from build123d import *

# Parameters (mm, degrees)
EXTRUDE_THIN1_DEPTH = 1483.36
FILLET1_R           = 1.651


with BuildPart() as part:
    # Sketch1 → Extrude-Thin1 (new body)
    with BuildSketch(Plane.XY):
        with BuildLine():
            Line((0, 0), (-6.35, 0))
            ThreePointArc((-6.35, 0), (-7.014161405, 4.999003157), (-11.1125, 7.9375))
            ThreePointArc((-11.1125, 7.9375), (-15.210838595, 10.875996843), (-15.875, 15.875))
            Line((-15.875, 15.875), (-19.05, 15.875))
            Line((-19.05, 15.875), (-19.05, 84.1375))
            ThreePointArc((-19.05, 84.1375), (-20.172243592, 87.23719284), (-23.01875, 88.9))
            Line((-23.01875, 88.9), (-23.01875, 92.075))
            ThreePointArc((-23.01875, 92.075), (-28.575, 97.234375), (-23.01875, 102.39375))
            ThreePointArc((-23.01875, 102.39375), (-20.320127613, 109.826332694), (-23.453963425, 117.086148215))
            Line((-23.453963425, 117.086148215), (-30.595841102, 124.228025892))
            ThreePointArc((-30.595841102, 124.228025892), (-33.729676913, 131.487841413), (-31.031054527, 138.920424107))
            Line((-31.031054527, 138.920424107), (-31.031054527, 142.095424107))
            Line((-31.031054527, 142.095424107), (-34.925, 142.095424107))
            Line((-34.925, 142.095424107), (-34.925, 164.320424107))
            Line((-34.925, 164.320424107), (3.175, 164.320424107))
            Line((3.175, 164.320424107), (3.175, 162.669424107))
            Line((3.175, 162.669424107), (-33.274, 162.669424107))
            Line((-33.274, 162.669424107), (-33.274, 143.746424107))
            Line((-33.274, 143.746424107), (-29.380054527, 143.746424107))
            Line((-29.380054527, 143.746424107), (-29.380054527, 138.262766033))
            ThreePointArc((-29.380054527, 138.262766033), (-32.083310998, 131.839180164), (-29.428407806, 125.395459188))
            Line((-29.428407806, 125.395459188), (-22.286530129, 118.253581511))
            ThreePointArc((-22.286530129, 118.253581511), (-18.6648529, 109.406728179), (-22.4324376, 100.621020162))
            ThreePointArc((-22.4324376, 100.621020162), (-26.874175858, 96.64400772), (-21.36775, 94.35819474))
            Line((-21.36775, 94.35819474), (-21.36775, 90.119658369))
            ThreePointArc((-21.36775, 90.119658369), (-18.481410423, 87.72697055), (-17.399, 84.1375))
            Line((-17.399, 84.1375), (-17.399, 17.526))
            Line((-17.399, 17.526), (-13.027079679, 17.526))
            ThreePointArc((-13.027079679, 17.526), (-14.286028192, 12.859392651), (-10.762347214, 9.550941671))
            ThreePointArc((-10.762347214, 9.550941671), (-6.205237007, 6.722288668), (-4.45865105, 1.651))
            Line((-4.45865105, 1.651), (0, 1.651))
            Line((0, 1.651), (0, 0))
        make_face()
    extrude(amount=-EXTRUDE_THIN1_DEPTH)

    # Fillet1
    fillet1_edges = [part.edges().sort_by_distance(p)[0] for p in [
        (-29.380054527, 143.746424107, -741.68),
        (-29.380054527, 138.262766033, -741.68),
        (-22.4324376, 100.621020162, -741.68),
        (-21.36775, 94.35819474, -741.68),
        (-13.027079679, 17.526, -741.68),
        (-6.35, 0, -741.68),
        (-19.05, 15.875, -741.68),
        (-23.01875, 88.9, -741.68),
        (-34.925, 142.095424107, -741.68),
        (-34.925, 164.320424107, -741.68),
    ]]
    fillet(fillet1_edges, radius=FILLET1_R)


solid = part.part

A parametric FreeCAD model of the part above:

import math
import FreeCAD as App
import Part
import Sketcher
Q = App.Units.Quantity


def edges_at(feature, points):
    """Names of the edges that pass closest to the given points."""
    edges = feature.Shape.Edges
    near = lambda p: min(range(len(edges)), key=lambda i: edges[i].distToShape(Part.Vertex(*p))[0])
    return sorted({f"Edge{near(p) + 1}" for p in points})

doc = App.newDocument("Part")
body = doc.addObject("PartDesign::Body", "Body")

sketch1 = body.newObject("Sketcher::SketchObject", "Sketch")
sketch1.AttachmentSupport = (doc.getObject("XY_Plane"), [""])
sketch1.MapMode = "FlatFace"
sketch1.addGeometry([
    Part.LineSegment(App.Vector(-6.35, 0, 0), App.Vector(0, 0, 0)),
    Part.LineSegment(App.Vector(0, 0, 0), App.Vector(0, 1.651, 0)),
    Part.LineSegment(App.Vector(0, 1.651, 0), App.Vector(-4.458651, 1.651, 0)),
    Part.ArcOfCircle(Part.Circle(App.Vector(-12.459241, 1.731955, 0), App.Vector(0, 0, 1), 8.001), math.radians(-0.579736), math.radians(77.755417)),
    Part.ArcOfCircle(Part.Circle(App.Vector(-9.765759, 14.143045, 0), App.Vector(0, 0, 1), 4.699), math.radians(133.951228), math.radians(257.755417)),
    Part.LineSegment(App.Vector(-13.02708, 17.526, 0), App.Vector(-17.399, 17.526, 0)),
    Part.LineSegment(App.Vector(-17.399, 17.526, 0), App.Vector(-17.399, 84.1375, 0)),
    Part.ArcOfCircle(Part.Circle(App.Vector(-23.891875, 84.1375, 0), App.Vector(0, 0, 1), 6.492875), math.radians(0), math.radians(67.123067)),
    Part.LineSegment(App.Vector(-21.36775, 90.119658, 0), App.Vector(-21.36775, 94.358195, 0)),
    Part.ArcOfCircle(Part.Circle(App.Vector(-23.401451, 97.234375, 0), App.Vector(0, 0, 1), 3.522549), math.radians(74.032703), math.radians(305.263518)),
    Part.ArcOfCircle(Part.Circle(App.Vector(-31.031055, 109.509057, 0), App.Vector(0, 0, 1), 12.366625), math.radians(-45.948211), math.radians(45)),
    Part.LineSegment(App.Vector(-22.28653, 118.253582, 0), App.Vector(-29.428408, 125.395459, 0)),
    Part.ArcOfCircle(Part.Circle(App.Vector(-23.01875, 131.805117, 0), App.Vector(0, 0, 1), 9.064625), math.radians(134.569385), math.radians(225)),
    Part.LineSegment(App.Vector(-29.380055, 138.262766, 0), App.Vector(-29.380055, 143.746424, 0)),
    Part.LineSegment(App.Vector(-29.380055, 143.746424, 0), App.Vector(-33.274, 143.746424, 0)),
    Part.LineSegment(App.Vector(-33.274, 143.746424, 0), App.Vector(-33.274, 162.669424, 0)),
    Part.LineSegment(App.Vector(-33.274, 162.669424, 0), App.Vector(3.175, 162.669424, 0)),
    Part.LineSegment(App.Vector(3.175, 162.669424, 0), App.Vector(3.175, 164.320424, 0)),
    Part.LineSegment(App.Vector(3.175, 164.320424, 0), App.Vector(-34.925, 164.320424, 0)),
    Part.LineSegment(App.Vector(-34.925, 164.320424, 0), App.Vector(-34.925, 142.095424, 0)),
    Part.LineSegment(App.Vector(-34.925, 142.095424, 0), App.Vector(-31.031055, 142.095424, 0)),
    Part.LineSegment(App.Vector(-31.031055, 142.095424, 0), App.Vector(-31.031055, 138.920424, 0)),
    Part.ArcOfCircle(Part.Circle(App.Vector(-23.01875, 131.805117, 0), App.Vector(0, 0, 1), 10.715625), math.radians(138.393401), math.radians(225)),
    Part.LineSegment(App.Vector(-30.595841, 124.228026, 0), App.Vector(-23.453963, 117.086148, 0)),
    Part.ArcOfCircle(Part.Circle(App.Vector(-31.031055, 109.509057, 0), App.Vector(0, 0, 1), 10.715625), math.radians(-41.606599), math.radians(45)),
    Part.ArcOfCircle(Part.Circle(App.Vector(-23.401451, 97.234375, 0), App.Vector(0, 0, 1), 5.173549), math.radians(85.757807), math.radians(274.242193)),
    Part.LineSegment(App.Vector(-23.01875, 92.075, 0), App.Vector(-23.01875, 88.9, 0)),
    Part.ArcOfCircle(Part.Circle(App.Vector(-23.891875, 84.1375, 0), App.Vector(0, 0, 1), 4.841875), math.radians(0), math.radians(79.611142)),
    Part.LineSegment(App.Vector(-19.05, 84.1375, 0), App.Vector(-19.05, 15.875, 0)),
    Part.LineSegment(App.Vector(-19.05, 15.875, 0), App.Vector(-15.875, 15.875, 0)),
    Part.ArcOfCircle(Part.Circle(App.Vector(-9.765759, 14.143045, 0), App.Vector(0, 0, 1), 6.35), math.radians(164.172096), math.radians(257.755417)),
    Part.ArcOfCircle(Part.Circle(App.Vector(-12.459241, 1.731955, 0), App.Vector(0, 0, 1), 6.35), math.radians(-15.827904), math.radians(77.755417)),
], False)
sketch1.addConstraint([
    Sketcher.Constraint("Coincident", 0, 2, 1, 1),
    Sketcher.Constraint("Coincident", 1, 2, 2, 1),
    Sketcher.Constraint("Coincident", 2, 2, 3, 1),
    Sketcher.Constraint("Tangent", 3, 2, 4, 2),
    Sketcher.Constraint("Coincident", 4, 1, 5, 1),
    Sketcher.Constraint("Coincident", 5, 2, 6, 1),
    Sketcher.Constraint("Tangent", 6, 2, 7, 1),
    Sketcher.Constraint("Coincident", 7, 2, 8, 1),
    Sketcher.Constraint("Coincident", 8, 2, 9, 2),
    Sketcher.Constraint("Coincident", 9, 1, 10, 1),
    Sketcher.Constraint("Tangent", 10, 2, 11, 1),
    Sketcher.Constraint("Tangent", 11, 2, 12, 2),
    Sketcher.Constraint("Coincident", 12, 1, 13, 1),
    Sketcher.Constraint("Coincident", 13, 2, 14, 1),
    Sketcher.Constraint("Coincident", 14, 2, 15, 1),
    Sketcher.Constraint("Coincident", 15, 2, 16, 1),
    Sketcher.Constraint("Coincident", 16, 2, 17, 1),
    Sketcher.Constraint("Coincident", 17, 2, 18, 1),
    Sketcher.Constraint("Coincident", 18, 2, 19, 1),
    Sketcher.Constraint("Coincident", 19, 2, 20, 1),
    Sketcher.Constraint("Coincident", 20, 2, 21, 1),
    Sketcher.Constraint("Coincident", 21, 2, 22, 1),
    Sketcher.Constraint("Tangent", 22, 2, 23, 1),
    Sketcher.Constraint("Tangent", 23, 2, 24, 2),
    Sketcher.Constraint("Coincident", 24, 1, 25, 1),
    Sketcher.Constraint("Coincident", 25, 2, 26, 1),
    Sketcher.Constraint("Coincident", 26, 2, 27, 2),
    Sketcher.Constraint("Tangent", 27, 1, 28, 1),
    Sketcher.Constraint("Coincident", 28, 2, 29, 1),
    Sketcher.Constraint("Coincident", 29, 2, 30, 1),
    Sketcher.Constraint("Tangent", 30, 2, 31, 2),
    Sketcher.Constraint("Coincident", 31, 1, 0, 1),
    Sketcher.Constraint("Horizontal", 0),
    Sketcher.Constraint("Vertical", 1),
    Sketcher.Constraint("Horizontal", 2),
    Sketcher.Constraint("Horizontal", 5),
    Sketcher.Constraint("Vertical", 6),
    Sketcher.Constraint("Vertical", 8),
    Sketcher.Constraint("Vertical", 13),
    Sketcher.Constraint("Horizontal", 14),
    Sketcher.Constraint("Vertical", 15),
    Sketcher.Constraint("Horizontal", 16),
    Sketcher.Constraint("Vertical", 17),
    Sketcher.Constraint("Horizontal", 18),
    Sketcher.Constraint("Vertical", 19),
    Sketcher.Constraint("Horizontal", 20),
    Sketcher.Constraint("Vertical", 21),
    Sketcher.Constraint("Vertical", 26),
    Sketcher.Constraint("Vertical", 28),
    Sketcher.Constraint("Horizontal", 29),
    Sketcher.Constraint("Coincident", 0, 2, -1, 1),
    Sketcher.Constraint("Coincident", 22, 3, 12, 3),
    Sketcher.Constraint("Coincident", 24, 3, 10, 3),
    Sketcher.Constraint("Coincident", 25, 3, 9, 3),
    Sketcher.Constraint("Coincident", 27, 3, 7, 3),
    Sketcher.Constraint("Coincident", 30, 3, 4, 3),
    Sketcher.Constraint("Coincident", 31, 3, 3, 3),
    Sketcher.Constraint("Equal", 22, 24),
    Sketcher.Constraint("Equal", 30, 31),
    Sketcher.Constraint("Parallel", 11, 23),
    Sketcher.Constraint("Vertical", 24, 3, 20, 2),
    Sketcher.Constraint("Vertical", 22, 3, 24, 1),
    Sketcher.Constraint("Vertical", 24, 1, 25, 2),
    Sketcher.Constraint("Equal", 14, 20),
    Sketcher.Constraint("Equal", 1, 17),
    Sketcher.Constraint("Equal", 29, 21),
    Sketcher.Constraint("Equal", 21, 26),
    Sketcher.Constraint("Radius", 30, Q("0.25 in")),
    Sketcher.Constraint("DistanceX", 18, 2, 18, 1, Q("1.5 in")),
    Sketcher.Constraint("Angle", 11, Q("135 deg")),
    Sketcher.Constraint("Radius", 3, Q("0.315 in")),
    Sketcher.Constraint("Radius", 22, Q("0.421875 in")),
    Sketcher.Constraint("DistanceX", 0, 1, 0, 2, Q("0.25 in")),
    Sketcher.Constraint("DistanceY", -1, 1, 26, 2, Q("3.5 in")),
    Sketcher.Constraint("DistanceX", 16, 1, 16, 2, Q("1.435 in")),
    Sketcher.Constraint("DistanceX", 29, 1, 29, 2, Q("0.125 in")),
    Sketcher.Constraint("DistanceY", 1, 1, 1, 2, Q("0.065 in")),
    Sketcher.Constraint("DistanceY", 15, 1, 15, 2, Q("0.745 in")),
    Sketcher.Constraint("DistanceY", 19, 2, 19, 1, Q("0.875 in")),
    Sketcher.Constraint("DistanceY", 28, 2, 28, 1, Q("2.6875 in")),
    Sketcher.Constraint("DistanceY", -1, 1, 4, 1, Q("0.69 in")),
    Sketcher.Constraint("DistanceX", 14, 2, -1, 1, Q("1.31 in")),
    Sketcher.Constraint("DistanceX", 27, 1, -1, 1, Q("0.75 in")),
    Sketcher.Constraint("DistanceX", 5, 2, 29, 2, Q("0.06 in")),
    Sketcher.Constraint("DistanceY", 6, 1, 6, 2, Q("2.6225 in")),
    Sketcher.Constraint("DistanceY", -1, 1, 9, 3, Q("3.828125 in")),
    Sketcher.Constraint("DistanceX", 12, 3, -1, 1, Q("0.90625 in")),
    Sketcher.Constraint("DistanceX", 30, 2, -1, 1, Q("0.4375 in")),
    Sketcher.Constraint("Radius", 9, Q("3.522549 mm")),
    Sketcher.Constraint("Radius", 25, Q("5.173549 mm")),
    Sketcher.Constraint("DistanceX", 7, 2, 6, 2, Q("0.15625 in")),
    Sketcher.Constraint("Radius", 10, Q("12.366625 mm")),
    Sketcher.Constraint("DistanceY", 13, 1, 13, 2, Q("5.483658 mm")),
])
pad1 = body.newObject("PartDesign::Pad", "Pad")
pad1.Profile = sketch1
pad1.Length = Q("58.4 in")
pad1.Reversed = True
doc.recompute()

fillet = body.newObject("PartDesign::Fillet", "Fillet")
fillet.Base = (pad1, edges_at(pad1, [
    (-29.38, 143.746, -741.68),
    (-29.38, 138.263, -741.68),
    (-22.432, 100.621, -741.68),
    (-21.368, 94.358, -741.68),
    (-13.027, 17.526, -741.68),
    (-6.35, 0, -741.68),
    (-19.05, 15.875, -741.68),
    (-23.019, 88.9, -741.68),
    (-34.925, 142.095, -741.68),
    (-34.925, 164.32, -741.68),
]))
fillet.Radius = Q("0.065 in")

doc.recompute()
